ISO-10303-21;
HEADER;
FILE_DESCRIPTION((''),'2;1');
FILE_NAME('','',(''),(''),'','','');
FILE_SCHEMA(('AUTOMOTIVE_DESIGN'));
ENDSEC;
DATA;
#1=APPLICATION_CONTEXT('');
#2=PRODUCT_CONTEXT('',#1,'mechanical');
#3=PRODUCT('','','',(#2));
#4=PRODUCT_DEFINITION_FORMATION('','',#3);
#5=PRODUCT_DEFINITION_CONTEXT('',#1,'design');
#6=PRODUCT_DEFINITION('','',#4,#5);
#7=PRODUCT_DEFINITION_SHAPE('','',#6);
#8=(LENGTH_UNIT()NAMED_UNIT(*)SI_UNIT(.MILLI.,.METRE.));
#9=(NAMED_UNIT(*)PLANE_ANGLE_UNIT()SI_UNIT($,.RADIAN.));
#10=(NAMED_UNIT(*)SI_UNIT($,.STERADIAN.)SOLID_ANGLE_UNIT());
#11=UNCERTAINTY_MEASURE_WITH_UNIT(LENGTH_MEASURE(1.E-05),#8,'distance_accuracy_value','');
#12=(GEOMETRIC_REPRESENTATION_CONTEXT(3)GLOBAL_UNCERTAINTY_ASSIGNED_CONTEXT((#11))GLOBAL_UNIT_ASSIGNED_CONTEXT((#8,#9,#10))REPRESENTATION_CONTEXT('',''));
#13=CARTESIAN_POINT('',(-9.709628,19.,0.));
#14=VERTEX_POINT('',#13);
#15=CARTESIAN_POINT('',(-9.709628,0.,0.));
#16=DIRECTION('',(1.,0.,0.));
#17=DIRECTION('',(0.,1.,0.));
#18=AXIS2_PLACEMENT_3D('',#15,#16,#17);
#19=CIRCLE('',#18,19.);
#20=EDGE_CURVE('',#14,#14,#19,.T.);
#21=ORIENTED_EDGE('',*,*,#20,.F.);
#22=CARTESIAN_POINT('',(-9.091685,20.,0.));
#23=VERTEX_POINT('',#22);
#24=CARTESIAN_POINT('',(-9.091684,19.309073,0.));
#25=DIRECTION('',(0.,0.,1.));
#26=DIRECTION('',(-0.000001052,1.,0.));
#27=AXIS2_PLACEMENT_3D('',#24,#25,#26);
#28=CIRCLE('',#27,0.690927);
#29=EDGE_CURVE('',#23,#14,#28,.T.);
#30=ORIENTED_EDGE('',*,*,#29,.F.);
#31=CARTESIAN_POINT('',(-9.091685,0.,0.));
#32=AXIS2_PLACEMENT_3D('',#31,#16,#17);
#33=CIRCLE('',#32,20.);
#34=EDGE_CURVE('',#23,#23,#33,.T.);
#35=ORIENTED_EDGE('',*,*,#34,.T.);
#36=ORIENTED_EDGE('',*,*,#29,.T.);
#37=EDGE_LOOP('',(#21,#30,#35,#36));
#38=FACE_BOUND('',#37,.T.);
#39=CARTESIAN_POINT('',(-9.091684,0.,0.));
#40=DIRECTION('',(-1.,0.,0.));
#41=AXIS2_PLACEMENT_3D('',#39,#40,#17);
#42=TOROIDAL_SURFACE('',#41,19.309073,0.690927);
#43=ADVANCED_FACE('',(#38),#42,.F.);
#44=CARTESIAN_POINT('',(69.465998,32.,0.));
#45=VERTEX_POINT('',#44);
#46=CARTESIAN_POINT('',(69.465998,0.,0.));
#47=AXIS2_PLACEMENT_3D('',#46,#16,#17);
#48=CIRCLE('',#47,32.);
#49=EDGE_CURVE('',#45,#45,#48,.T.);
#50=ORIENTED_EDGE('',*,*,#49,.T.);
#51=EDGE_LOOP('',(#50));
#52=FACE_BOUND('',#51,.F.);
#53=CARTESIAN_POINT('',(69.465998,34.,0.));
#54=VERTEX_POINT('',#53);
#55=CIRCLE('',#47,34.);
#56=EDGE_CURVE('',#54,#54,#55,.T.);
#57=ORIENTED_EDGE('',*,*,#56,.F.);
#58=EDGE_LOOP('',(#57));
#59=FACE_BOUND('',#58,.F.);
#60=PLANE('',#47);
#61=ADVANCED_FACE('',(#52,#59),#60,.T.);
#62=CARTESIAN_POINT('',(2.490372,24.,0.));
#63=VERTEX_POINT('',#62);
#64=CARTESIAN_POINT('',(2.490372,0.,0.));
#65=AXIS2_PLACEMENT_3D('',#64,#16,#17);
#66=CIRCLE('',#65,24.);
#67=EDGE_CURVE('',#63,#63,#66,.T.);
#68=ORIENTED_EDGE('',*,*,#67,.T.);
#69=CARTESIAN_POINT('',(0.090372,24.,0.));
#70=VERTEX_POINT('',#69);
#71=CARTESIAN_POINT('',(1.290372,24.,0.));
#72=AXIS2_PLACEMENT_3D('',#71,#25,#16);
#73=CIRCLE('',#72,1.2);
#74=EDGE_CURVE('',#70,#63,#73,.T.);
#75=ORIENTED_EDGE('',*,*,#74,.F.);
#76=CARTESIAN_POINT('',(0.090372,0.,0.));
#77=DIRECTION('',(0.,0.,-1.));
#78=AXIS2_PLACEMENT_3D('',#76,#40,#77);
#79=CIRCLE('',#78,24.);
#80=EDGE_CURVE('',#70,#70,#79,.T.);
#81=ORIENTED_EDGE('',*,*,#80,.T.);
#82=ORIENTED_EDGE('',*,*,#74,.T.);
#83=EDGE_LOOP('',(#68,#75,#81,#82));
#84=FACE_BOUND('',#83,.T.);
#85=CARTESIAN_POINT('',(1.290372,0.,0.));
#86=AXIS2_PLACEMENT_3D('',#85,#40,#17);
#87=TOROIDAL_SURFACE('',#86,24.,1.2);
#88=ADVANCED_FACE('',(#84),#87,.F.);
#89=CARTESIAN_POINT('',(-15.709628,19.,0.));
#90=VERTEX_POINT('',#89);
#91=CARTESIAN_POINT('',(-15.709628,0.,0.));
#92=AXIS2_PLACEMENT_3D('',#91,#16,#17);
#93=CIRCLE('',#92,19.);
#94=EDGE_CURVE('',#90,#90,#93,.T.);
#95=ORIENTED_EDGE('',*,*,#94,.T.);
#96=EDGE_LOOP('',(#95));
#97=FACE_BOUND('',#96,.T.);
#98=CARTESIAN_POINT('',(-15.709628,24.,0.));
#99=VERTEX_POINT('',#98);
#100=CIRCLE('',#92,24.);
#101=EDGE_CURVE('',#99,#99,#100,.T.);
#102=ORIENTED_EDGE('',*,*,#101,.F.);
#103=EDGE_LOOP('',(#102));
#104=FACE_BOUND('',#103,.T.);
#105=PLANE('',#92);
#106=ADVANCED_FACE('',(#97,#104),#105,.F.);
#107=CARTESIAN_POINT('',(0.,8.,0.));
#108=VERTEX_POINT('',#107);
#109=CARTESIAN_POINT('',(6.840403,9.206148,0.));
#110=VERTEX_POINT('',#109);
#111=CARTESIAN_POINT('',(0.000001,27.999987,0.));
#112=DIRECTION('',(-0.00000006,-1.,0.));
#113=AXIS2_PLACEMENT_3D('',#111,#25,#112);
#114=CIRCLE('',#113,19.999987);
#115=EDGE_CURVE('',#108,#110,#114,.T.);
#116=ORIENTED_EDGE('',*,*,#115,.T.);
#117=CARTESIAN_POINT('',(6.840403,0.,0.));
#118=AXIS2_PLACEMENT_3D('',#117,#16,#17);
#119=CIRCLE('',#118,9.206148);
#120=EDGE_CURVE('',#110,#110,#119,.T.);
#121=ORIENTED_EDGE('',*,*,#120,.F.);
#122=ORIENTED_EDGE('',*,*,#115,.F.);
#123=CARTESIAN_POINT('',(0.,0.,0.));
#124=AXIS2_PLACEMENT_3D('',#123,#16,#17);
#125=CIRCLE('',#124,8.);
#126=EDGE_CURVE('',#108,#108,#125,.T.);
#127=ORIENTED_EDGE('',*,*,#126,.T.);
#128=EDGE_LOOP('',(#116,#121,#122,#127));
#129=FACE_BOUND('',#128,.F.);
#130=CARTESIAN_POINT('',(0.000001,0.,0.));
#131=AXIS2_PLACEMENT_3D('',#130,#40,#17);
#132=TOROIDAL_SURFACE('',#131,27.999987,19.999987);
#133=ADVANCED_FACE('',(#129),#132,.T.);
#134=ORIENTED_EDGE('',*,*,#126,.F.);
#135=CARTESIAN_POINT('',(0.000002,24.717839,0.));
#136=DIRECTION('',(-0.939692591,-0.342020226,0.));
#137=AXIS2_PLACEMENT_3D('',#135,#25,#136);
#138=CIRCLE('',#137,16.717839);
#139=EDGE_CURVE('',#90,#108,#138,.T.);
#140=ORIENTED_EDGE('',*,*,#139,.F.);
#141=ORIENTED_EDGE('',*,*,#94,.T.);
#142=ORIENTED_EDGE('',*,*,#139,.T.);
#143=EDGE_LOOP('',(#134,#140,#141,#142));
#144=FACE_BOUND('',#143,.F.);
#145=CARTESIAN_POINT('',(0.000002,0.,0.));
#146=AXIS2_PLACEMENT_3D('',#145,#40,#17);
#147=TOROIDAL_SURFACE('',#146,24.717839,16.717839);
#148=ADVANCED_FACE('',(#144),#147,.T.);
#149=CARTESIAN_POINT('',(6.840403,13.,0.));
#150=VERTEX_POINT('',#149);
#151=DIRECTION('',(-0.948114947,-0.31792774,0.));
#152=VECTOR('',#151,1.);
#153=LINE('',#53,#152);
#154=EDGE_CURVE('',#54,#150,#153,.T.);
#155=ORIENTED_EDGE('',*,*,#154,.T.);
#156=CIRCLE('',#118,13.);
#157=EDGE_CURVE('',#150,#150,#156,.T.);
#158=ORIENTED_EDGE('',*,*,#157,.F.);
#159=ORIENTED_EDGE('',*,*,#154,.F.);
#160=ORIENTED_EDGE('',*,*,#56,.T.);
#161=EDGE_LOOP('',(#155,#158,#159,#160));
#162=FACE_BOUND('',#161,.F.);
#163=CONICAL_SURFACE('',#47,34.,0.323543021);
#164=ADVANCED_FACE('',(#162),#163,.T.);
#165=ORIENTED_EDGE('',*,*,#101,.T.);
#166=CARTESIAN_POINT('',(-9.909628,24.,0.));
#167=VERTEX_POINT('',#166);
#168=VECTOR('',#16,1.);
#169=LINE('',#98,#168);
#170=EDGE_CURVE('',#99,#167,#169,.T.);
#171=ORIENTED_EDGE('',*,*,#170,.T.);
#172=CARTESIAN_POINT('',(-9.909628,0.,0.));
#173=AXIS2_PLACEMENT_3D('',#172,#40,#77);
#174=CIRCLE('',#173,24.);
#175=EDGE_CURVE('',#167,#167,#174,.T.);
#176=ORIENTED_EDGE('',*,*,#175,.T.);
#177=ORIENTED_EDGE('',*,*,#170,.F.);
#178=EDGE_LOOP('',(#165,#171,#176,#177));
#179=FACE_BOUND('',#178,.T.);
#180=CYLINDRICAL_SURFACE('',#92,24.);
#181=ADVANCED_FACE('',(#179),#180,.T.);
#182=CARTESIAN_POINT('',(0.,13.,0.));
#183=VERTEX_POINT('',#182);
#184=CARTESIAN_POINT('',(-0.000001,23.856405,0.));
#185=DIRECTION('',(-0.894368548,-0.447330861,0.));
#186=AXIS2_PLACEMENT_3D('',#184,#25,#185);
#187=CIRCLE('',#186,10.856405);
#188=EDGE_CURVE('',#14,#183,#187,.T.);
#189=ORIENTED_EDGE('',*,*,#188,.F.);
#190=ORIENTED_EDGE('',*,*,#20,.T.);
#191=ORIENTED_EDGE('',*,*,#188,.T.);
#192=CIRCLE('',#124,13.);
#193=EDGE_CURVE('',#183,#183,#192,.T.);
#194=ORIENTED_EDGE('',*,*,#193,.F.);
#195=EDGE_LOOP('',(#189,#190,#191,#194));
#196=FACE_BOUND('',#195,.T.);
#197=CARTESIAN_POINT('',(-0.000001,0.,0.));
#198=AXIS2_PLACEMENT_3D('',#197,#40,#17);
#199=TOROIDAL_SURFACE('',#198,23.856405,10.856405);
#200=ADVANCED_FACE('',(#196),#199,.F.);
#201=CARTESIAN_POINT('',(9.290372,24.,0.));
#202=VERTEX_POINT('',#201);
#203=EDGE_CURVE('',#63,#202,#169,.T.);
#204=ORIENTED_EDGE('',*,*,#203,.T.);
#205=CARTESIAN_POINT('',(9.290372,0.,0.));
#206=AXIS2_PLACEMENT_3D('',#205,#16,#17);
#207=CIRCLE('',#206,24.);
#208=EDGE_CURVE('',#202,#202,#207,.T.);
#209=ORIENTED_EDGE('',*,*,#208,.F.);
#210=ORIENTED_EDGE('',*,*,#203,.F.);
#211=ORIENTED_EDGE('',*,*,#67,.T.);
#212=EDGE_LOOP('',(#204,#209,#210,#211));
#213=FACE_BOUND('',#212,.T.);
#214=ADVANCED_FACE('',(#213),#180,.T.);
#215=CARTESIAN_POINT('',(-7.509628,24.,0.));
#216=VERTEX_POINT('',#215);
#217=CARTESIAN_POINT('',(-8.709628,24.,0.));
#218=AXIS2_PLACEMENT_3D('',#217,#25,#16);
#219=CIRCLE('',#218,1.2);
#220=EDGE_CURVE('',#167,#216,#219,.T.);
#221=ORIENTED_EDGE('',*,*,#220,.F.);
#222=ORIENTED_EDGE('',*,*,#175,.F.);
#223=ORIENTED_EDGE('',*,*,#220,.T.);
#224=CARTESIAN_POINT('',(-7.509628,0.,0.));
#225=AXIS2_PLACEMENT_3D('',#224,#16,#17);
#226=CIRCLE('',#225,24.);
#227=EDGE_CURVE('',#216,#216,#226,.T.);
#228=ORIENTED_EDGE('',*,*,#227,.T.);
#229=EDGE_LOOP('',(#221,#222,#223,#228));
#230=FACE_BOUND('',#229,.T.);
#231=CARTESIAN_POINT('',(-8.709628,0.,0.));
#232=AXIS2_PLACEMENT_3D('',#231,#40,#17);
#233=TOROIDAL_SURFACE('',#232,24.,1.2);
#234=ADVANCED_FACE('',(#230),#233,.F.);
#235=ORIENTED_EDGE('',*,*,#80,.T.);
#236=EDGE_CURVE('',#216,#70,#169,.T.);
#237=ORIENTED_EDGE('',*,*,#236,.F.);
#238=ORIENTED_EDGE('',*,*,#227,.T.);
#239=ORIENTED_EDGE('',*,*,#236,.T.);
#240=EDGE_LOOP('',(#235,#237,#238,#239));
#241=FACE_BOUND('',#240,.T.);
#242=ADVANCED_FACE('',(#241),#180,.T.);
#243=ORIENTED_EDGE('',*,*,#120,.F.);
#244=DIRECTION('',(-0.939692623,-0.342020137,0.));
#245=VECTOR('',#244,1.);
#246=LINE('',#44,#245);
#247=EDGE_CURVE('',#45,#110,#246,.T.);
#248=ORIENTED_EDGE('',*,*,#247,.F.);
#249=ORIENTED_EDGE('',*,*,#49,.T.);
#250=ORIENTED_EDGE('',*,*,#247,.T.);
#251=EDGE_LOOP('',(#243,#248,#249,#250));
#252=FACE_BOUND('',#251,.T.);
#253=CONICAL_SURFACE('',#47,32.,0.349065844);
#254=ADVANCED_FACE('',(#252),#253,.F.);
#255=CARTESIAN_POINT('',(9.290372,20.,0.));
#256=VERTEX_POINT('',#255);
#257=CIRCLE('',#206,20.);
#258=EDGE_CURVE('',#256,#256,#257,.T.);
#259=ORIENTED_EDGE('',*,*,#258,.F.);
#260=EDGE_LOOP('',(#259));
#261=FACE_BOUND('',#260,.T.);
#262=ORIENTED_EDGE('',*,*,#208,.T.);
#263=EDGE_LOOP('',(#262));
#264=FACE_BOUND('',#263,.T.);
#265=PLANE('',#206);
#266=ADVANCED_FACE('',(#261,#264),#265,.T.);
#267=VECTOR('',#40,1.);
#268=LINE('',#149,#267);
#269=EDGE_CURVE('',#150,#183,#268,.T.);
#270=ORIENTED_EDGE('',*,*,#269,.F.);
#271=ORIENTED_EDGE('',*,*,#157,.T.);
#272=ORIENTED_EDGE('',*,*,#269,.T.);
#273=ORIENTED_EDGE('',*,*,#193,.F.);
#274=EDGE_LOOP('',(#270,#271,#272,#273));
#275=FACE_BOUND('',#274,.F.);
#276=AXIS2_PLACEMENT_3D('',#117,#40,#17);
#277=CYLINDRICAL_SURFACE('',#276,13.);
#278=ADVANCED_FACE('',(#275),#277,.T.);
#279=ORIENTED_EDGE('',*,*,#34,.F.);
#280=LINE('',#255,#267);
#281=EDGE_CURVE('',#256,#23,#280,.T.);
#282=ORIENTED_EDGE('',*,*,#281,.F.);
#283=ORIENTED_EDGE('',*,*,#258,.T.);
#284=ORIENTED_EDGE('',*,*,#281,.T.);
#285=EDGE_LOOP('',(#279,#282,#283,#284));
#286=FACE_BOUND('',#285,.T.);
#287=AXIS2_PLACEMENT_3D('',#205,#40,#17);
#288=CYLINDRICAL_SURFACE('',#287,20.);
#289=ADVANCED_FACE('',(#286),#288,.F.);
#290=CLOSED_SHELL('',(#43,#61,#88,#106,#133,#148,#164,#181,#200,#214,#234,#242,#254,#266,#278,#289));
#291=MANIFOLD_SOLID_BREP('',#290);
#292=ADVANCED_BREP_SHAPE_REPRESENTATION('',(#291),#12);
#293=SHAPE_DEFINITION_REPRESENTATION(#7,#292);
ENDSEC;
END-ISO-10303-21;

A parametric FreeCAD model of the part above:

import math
import FreeCAD as App
import Part
import Sketcher
Q = App.Units.Quantity

doc = App.newDocument("Part")
params = doc.addObject("Spreadsheet::Sheet", "Params")
for row, (alias, value) in enumerate([
    ("sketch1_width", "25 mm"),
    ("sketch1_height", "2 mm"),
    ("sketch1_height2", "4 mm"),
    ("sketch1_height3", "5 mm"),
    ("revolution_angle", "360 deg"),
    ("sketch2_diameter", "2.4 mm"),
    ("groove_angle", "360 deg"),
], start=1):
    params.set(f"A{row}", alias)
    params.set(f"B{row}", "=" + value)
    params.setAlias(f"B{row}", alias)

body = doc.addObject("PartDesign::Body", "Body")

# Sketch on XY plane
sketch1 = body.newObject("Sketcher::SketchObject", "Sketch")
sketch1.AttachmentSupport = (doc.getObject("XY_Plane"), [""])
sketch1.MapMode = "FlatFace"
sketch1.addGeometry([
    Part.LineSegment(App.Vector(6.8, 9.2, 0), App.Vector(69.5, 32, 0)),  # 0
    Part.LineSegment(App.Vector(69.5, 32, 0), App.Vector(69.5, 34, 0)),  # 1
    Part.LineSegment(App.Vector(69.5, 34, 0), App.Vector(6.8, 13, 0)),  # 2
    Part.LineSegment(App.Vector(6.8, 13, 0), App.Vector(0, 13, 0)),  # 3
    Part.ArcOfCircle(Part.Circle(App.Vector(0, 23.9, 0), App.Vector(0, 0, 1), 10.9), math.radians(-153), math.radians(-90)),  # 4
    Part.ArcOfCircle(Part.Circle(App.Vector(-9.1, 19.3, 0), App.Vector(0, 0, 1), 0.7), math.radians(90), math.radians(207)),  # 5
    Part.LineSegment(App.Vector(-9.1, 20, 0), App.Vector(9.3, 20, 0)),  # 6
    Part.LineSegment(App.Vector(9.3, 20, 0), App.Vector(9.3, 24, 0)),  # 7
    Part.LineSegment(App.Vector(9.3, 24, 0), App.Vector(-15.7, 24, 0)),  # 8
    Part.LineSegment(App.Vector(-15.7, 24, 0), App.Vector(-15.7, 19, 0)),  # 9
    Part.ArcOfCircle(Part.Circle(App.Vector(0, 24.7, 0), App.Vector(0, 0, 1), 16.7), math.radians(-160), math.radians(-90)),  # 10
    Part.ArcOfCircle(Part.Circle(App.Vector(0, 28, 0), App.Vector(0, 0, 1), 20), math.radians(-90), math.radians(-70)),  # 11
], False)
sketch1.addConstraint([
    Sketcher.Constraint("Coincident", 0, 2, 1, 1),
    Sketcher.Constraint("Coincident", 1, 2, 2, 1),
    Sketcher.Constraint("Coincident", 2, 2, 3, 1),
    Sketcher.Constraint("Tangent", 3, 2, 4, 2),
    Sketcher.Constraint("Tangent", 4, 1, 5, 2),
    Sketcher.Constraint("Tangent", 5, 1, 6, 1),
    Sketcher.Constraint("Coincident", 6, 2, 7, 1),
    Sketcher.Constraint("Coincident", 7, 2, 8, 1),
    Sketcher.Constraint("Coincident", 8, 2, 9, 1),
    Sketcher.Constraint("Coincident", 9, 2, 10, 1),
    Sketcher.Constraint("Tangent", 10, 2, 11, 1),
    Sketcher.Constraint("Tangent", 11, 2, 0, 1),
    Sketcher.Constraint("Vertical", 1),
    Sketcher.Constraint("Horizontal", 3),
    Sketcher.Constraint("Horizontal", 6),
    Sketcher.Constraint("Vertical", 7),
    Sketcher.Constraint("Horizontal", 8),
    Sketcher.Constraint("Vertical", 9),
    Sketcher.Constraint("PointOnObject", 4, 3, -2),
    Sketcher.Constraint("PointOnObject", 10, 3, -2),
    Sketcher.Constraint("PointOnObject", 11, 3, -2),
    Sketcher.Constraint("Horizontal", 4, 1, 9, 2),
    Sketcher.Constraint("Vertical", 2, 2, 11, 2),
    Sketcher.Constraint("DistanceX", 8, 2, 8, 1, 25.0),
    Sketcher.Constraint("DistanceY", 1, 1, 1, 2, 2.0),
    Sketcher.Constraint("DistanceY", 7, 1, 7, 2, 4.0),
    Sketcher.Constraint("DistanceY", 9, 2, 9, 1, 5.0),
    Sketcher.Constraint("Angle", 0, Q("20 deg")),
    Sketcher.Constraint("DistanceY", -1, 1, 0, 2, 32.0),
    Sketcher.Constraint("DistanceY", -1, 1, 2, 2, 13.0),
    Sketcher.Constraint("DistanceY", -1, 1, 4, 1, 19.0),
    Sketcher.Constraint("DistanceY", -1, 1, 10, 2, 8.0),
    Sketcher.Constraint("DistanceX", 8, 2, 4, 1, 6.0),
    Sketcher.Constraint("Radius", 10, 16.717839),
    Sketcher.Constraint("DistanceX", -1, 1, 0, 2, 69.465998),
])
sketch1.setExpression("Constraints[23]", "Params.sketch1_width")
sketch1.setExpression("Constraints[24]", "Params.sketch1_height")
sketch1.setExpression("Constraints[25]", "Params.sketch1_height2")
sketch1.setExpression("Constraints[26]", "Params.sketch1_height3")
revolution = body.newObject("PartDesign::Revolution", "Revolution")
revolution.Profile = sketch1
revolution.ReferenceAxis = (sketch1, ["H_Axis"])
revolution.setExpression("Angle", "Params.revolution_angle")

# Sketch on XY plane
sketch2 = body.newObject("Sketcher::SketchObject", "Sketch001")
sketch2.AttachmentSupport = (doc.getObject("XY_Plane"), [""])
sketch2.MapMode = "FlatFace"
sketch2.addGeometry([
    Part.Circle(App.Vector(-8.7, 24, 0), App.Vector(0, 0, 1), 1.2),
    Part.Circle(App.Vector(1.3, 24, 0), App.Vector(0, 0, 1), 1.2),
], False)
sketch2.addConstraint([
    Sketcher.Constraint("Equal", 0, 1),
    Sketcher.Constraint("Horizontal", 0, 3, 1, 3),
    Sketcher.Constraint("Diameter", 0, 2.4),
    Sketcher.Constraint("DistanceY", -1, 1, 0, 3, 24.0),
    Sketcher.Constraint("DistanceX", 0, 3, 1, 3, 10.0),
    Sketcher.Constraint("DistanceX", 0, 3, -1, 1, 8.709628),
])
sketch2.setExpression("Constraints[2]", "Params.sketch2_diameter")
groove = body.newObject("PartDesign::Groove", "Groove")
groove.Profile = sketch2
groove.ReferenceAxis = (sketch2, ["H_Axis"])
groove.setExpression("Angle", "Params.groove_angle")

doc.recompute()
